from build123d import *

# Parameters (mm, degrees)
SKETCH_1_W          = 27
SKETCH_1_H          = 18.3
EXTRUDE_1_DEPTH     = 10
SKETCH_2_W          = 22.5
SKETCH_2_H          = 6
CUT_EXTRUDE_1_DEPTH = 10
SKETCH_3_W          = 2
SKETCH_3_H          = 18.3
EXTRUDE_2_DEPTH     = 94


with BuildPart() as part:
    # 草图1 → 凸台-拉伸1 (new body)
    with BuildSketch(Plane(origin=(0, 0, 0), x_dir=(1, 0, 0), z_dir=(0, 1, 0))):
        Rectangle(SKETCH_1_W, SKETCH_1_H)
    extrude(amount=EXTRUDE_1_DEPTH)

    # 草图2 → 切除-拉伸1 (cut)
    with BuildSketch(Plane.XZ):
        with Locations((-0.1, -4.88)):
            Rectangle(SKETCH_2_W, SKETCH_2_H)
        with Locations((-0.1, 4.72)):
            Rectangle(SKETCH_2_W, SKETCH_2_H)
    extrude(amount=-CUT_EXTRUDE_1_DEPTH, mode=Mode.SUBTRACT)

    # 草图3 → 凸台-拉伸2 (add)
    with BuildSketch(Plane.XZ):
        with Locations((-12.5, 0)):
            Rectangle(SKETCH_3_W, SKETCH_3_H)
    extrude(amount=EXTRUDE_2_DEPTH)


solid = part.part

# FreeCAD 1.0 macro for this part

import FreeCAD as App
import Part
import Sketcher
Q = App.Units.Quantity

doc = App.newDocument("Part")
body = doc.addObject("PartDesign::Body", "Body")

# Sketch on XZ plane
sketch1 = body.newObject("Sketcher::SketchObject", "Sketch")
sketch1.AttachmentSupport = (doc.getObject("XZ_Plane"), [""])
sketch1.MapMode = "FlatFace"
sketch1.addGeometry(Part.LineSegment(App.Vector(-14, -9, 0), App.Vector(-14, 9, 0)), False)
sketch1.addGeometry(Part.LineSegment(App.Vector(-14, 9, 0), App.Vector(14, 9, 0)), False)
sketch1.addGeometry(Part.LineSegment(App.Vector(14, 9, 0), App.Vector(14, -9, 0)), False)
sketch1.addGeometry(Part.LineSegment(App.Vector(14, -9, 0), App.Vector(-14, -9, 0)), False)
sketch1.addConstraint(Sketcher.Constraint("Coincident", 0, 2, 1, 1))
sketch1.addConstraint(Sketcher.Constraint("Coincident", 1, 2, 2, 1))
sketch1.addConstraint(Sketcher.Constraint("Coincident", 2, 2, 3, 1))
sketch1.addConstraint(Sketcher.Constraint("Coincident", 3, 2, 0, 1))
sketch1.addConstraint(Sketcher.Constraint("Vertical", 0))
sketch1.addConstraint(Sketcher.Constraint("Horizontal", 1))
sketch1.addConstraint(Sketcher.Constraint("Vertical", 2))
sketch1.addConstraint(Sketcher.Constraint("Horizontal", 3))
sketch1.addConstraint(Sketcher.Constraint("Symmetric", 0, 2, 2, 2, -1, 1))
sketch1.addConstraint(Sketcher.Constraint("DistanceX", 1, 1, 1, 2, Q("27 mm")))
sketch1.addConstraint(Sketcher.Constraint("DistanceY", 0, 1, 0, 2, Q("18.3 mm")))
pad1 = body.newObject("PartDesign::Pad", "Pad")
pad1.Profile = sketch1
pad1.Length = 10
pad1.Reversed = True

# Sketch on XZ plane
sketch2 = body.newObject("Sketcher::SketchObject", "Sketch001")
sketch2.AttachmentSupport = (doc.getObject("XZ_Plane"), [""])
sketch2.MapMode = "FlatFace"
sketch2.addGeometry(Part.LineSegment(App.Vector(-11, -2, 0), App.Vector(-11, -8, 0)), False)
sketch2.addGeometry(Part.LineSegment(App.Vector(-11, -8, 0), App.Vector(11, -8, 0)), False)
sketch2.addGeometry(Part.LineSegment(App.Vector(11, -8, 0), App.Vector(11, -2, 0)), False)
sketch2.addGeometry(Part.LineSegment(App.Vector(11, -2, 0), App.Vector(-11, -2, 0)), False)
sketch2.addGeometry(Part.LineSegment(App.Vector(-11, 8, 0), App.Vector(-11, 2, 0)), False)
sketch2.addGeometry(Part.LineSegment(App.Vector(-11, 2, 0), App.Vector(11, 2, 0)), False)
sketch2.addGeometry(Part.LineSegment(App.Vector(11, 2, 0), App.Vector(11, 8, 0)), False)
sketch2.addGeometry(Part.LineSegment(App.Vector(11, 8, 0), App.Vector(-11, 8, 0)), False)
sketch2.addConstraint(Sketcher.Constraint("Coincident", 0, 2, 1, 1))
sketch2.addConstraint(Sketcher.Constraint("Coincident", 1, 2, 2, 1))
sketch2.addConstraint(Sketcher.Constraint("Coincident", 2, 2, 3, 1))
sketch2.addConstraint(Sketcher.Constraint("Coincident", 3, 2, 0, 1))
sketch2.addConstraint(Sketcher.Constraint("Coincident", 4, 2, 5, 1))
sketch2.addConstraint(Sketcher.Constraint("Coincident", 5, 2, 6, 1))
sketch2.addConstraint(Sketcher.Constraint("Coincident", 6, 2, 7, 1))
sketch2.addConstraint(Sketcher.Constraint("Coincident", 7, 2, 4, 1))
sketch2.addConstraint(Sketcher.Constraint("Vertical", 0))
sketch2.addConstraint(Sketcher.Constraint("Horizontal", 1))
sketch2.addConstraint(Sketcher.Constraint("Vertical", 2))
sketch2.addConstraint(Sketcher.Constraint("Horizontal", 3))
sketch2.addConstraint(Sketcher.Constraint("Vertical", 4))
sketch2.addConstraint(Sketcher.Constraint("Horizontal", 5))
sketch2.addConstraint(Sketcher.Constraint("Vertical", 6))
sketch2.addConstraint(Sketcher.Constraint("Horizontal", 7))
sketch2.addConstraint(Sketcher.Constraint("Vertical", 3, 2, 4, 2))
sketch2.addConstraint(Sketcher.Constraint("Vertical", 2, 2, 5, 2))
sketch2.addConstraint(Sketcher.Constraint("Equal", 2, 4))
sketch2.addConstraint(Sketcher.Constraint("DistanceY", 0, 2, 0, 1, Q("6 mm")))
sketch2.addConstraint(Sketcher.Constraint("DistanceX", 1, 1, 1, 2, Q("22.5 mm")))
sketch2.addConstraint(Sketcher.Constraint("DistanceY", 3, 2, 4, 2, Q("3.6 mm")))
sketch2.addConstraint(Sketcher.Constraint("DistanceX", 0, 2, -1, 1, Q("11.35 mm")))
sketch2.addConstraint(Sketcher.Constraint("DistanceY", 0, 2, -1, 1, Q("7.88 mm")))
pocket1 = body.newObject("PartDesign::Pocket", "Pocket")
pocket1.Profile = sketch2
pocket1.Length = 10

# Sketch on XZ plane
sketch3 = body.newObject("Sketcher::SketchObject", "Sketch002")
sketch3.AttachmentSupport = (doc.getObject("XZ_Plane"), [""])
sketch3.MapMode = "FlatFace"
sketch3.addGeometry(Part.LineSegment(App.Vector(-13.5, 9.2, 0), App.Vector(-13.5, -9.2, 0)), False)
sketch3.addGeometry(Part.LineSegment(App.Vector(-13.5, -9.2, 0), App.Vector(-11.5, -9.2, 0)), False)
sketch3.addGeometry(Part.LineSegment(App.Vector(-11.5, -9.2, 0), App.Vector(-11.5, 9.2, 0)), False)
sketch3.addGeometry(Part.LineSegment(App.Vector(-11.5, 9.2, 0), App.Vector(-13.5, 9.2, 0)), False)
sketch3.addConstraint(Sketcher.Constraint("Coincident", 0, 2, 1, 1))
sketch3.addConstraint(Sketcher.Constraint("Coincident", 1, 2, 2, 1))
sketch3.addConstraint(Sketcher.Constraint("Coincident", 2, 2, 3, 1))
sketch3.addConstraint(Sketcher.Constraint("Coincident", 3, 2, 0, 1))
sketch3.addConstraint(Sketcher.Constraint("Vertical", 0))
sketch3.addConstraint(Sketcher.Constraint("Horizontal", 1))
sketch3.addConstraint(Sketcher.Constraint("Vertical", 2))
sketch3.addConstraint(Sketcher.Constraint("Horizontal", 3))
sketch3.addConstraint(Sketcher.Constraint("DistanceX", 1, 1, 1, 2, Q("2 mm")))
sketch3.addConstraint(Sketcher.Constraint("DistanceY", 0, 2, 0, 1, Q("18.3 mm")))
sketch3.addConstraint(Sketcher.Constraint("DistanceX", 0, 2, -1, 1, Q("13.5 mm")))
sketch3.addConstraint(Sketcher.Constraint("DistanceY", 0, 2, -1, 1, Q("9.15 mm")))
pad2 = body.newObject("PartDesign::Pad", "Pad001")
pad2.Profile = sketch3
pad2.Length = 94

doc.recompute()
